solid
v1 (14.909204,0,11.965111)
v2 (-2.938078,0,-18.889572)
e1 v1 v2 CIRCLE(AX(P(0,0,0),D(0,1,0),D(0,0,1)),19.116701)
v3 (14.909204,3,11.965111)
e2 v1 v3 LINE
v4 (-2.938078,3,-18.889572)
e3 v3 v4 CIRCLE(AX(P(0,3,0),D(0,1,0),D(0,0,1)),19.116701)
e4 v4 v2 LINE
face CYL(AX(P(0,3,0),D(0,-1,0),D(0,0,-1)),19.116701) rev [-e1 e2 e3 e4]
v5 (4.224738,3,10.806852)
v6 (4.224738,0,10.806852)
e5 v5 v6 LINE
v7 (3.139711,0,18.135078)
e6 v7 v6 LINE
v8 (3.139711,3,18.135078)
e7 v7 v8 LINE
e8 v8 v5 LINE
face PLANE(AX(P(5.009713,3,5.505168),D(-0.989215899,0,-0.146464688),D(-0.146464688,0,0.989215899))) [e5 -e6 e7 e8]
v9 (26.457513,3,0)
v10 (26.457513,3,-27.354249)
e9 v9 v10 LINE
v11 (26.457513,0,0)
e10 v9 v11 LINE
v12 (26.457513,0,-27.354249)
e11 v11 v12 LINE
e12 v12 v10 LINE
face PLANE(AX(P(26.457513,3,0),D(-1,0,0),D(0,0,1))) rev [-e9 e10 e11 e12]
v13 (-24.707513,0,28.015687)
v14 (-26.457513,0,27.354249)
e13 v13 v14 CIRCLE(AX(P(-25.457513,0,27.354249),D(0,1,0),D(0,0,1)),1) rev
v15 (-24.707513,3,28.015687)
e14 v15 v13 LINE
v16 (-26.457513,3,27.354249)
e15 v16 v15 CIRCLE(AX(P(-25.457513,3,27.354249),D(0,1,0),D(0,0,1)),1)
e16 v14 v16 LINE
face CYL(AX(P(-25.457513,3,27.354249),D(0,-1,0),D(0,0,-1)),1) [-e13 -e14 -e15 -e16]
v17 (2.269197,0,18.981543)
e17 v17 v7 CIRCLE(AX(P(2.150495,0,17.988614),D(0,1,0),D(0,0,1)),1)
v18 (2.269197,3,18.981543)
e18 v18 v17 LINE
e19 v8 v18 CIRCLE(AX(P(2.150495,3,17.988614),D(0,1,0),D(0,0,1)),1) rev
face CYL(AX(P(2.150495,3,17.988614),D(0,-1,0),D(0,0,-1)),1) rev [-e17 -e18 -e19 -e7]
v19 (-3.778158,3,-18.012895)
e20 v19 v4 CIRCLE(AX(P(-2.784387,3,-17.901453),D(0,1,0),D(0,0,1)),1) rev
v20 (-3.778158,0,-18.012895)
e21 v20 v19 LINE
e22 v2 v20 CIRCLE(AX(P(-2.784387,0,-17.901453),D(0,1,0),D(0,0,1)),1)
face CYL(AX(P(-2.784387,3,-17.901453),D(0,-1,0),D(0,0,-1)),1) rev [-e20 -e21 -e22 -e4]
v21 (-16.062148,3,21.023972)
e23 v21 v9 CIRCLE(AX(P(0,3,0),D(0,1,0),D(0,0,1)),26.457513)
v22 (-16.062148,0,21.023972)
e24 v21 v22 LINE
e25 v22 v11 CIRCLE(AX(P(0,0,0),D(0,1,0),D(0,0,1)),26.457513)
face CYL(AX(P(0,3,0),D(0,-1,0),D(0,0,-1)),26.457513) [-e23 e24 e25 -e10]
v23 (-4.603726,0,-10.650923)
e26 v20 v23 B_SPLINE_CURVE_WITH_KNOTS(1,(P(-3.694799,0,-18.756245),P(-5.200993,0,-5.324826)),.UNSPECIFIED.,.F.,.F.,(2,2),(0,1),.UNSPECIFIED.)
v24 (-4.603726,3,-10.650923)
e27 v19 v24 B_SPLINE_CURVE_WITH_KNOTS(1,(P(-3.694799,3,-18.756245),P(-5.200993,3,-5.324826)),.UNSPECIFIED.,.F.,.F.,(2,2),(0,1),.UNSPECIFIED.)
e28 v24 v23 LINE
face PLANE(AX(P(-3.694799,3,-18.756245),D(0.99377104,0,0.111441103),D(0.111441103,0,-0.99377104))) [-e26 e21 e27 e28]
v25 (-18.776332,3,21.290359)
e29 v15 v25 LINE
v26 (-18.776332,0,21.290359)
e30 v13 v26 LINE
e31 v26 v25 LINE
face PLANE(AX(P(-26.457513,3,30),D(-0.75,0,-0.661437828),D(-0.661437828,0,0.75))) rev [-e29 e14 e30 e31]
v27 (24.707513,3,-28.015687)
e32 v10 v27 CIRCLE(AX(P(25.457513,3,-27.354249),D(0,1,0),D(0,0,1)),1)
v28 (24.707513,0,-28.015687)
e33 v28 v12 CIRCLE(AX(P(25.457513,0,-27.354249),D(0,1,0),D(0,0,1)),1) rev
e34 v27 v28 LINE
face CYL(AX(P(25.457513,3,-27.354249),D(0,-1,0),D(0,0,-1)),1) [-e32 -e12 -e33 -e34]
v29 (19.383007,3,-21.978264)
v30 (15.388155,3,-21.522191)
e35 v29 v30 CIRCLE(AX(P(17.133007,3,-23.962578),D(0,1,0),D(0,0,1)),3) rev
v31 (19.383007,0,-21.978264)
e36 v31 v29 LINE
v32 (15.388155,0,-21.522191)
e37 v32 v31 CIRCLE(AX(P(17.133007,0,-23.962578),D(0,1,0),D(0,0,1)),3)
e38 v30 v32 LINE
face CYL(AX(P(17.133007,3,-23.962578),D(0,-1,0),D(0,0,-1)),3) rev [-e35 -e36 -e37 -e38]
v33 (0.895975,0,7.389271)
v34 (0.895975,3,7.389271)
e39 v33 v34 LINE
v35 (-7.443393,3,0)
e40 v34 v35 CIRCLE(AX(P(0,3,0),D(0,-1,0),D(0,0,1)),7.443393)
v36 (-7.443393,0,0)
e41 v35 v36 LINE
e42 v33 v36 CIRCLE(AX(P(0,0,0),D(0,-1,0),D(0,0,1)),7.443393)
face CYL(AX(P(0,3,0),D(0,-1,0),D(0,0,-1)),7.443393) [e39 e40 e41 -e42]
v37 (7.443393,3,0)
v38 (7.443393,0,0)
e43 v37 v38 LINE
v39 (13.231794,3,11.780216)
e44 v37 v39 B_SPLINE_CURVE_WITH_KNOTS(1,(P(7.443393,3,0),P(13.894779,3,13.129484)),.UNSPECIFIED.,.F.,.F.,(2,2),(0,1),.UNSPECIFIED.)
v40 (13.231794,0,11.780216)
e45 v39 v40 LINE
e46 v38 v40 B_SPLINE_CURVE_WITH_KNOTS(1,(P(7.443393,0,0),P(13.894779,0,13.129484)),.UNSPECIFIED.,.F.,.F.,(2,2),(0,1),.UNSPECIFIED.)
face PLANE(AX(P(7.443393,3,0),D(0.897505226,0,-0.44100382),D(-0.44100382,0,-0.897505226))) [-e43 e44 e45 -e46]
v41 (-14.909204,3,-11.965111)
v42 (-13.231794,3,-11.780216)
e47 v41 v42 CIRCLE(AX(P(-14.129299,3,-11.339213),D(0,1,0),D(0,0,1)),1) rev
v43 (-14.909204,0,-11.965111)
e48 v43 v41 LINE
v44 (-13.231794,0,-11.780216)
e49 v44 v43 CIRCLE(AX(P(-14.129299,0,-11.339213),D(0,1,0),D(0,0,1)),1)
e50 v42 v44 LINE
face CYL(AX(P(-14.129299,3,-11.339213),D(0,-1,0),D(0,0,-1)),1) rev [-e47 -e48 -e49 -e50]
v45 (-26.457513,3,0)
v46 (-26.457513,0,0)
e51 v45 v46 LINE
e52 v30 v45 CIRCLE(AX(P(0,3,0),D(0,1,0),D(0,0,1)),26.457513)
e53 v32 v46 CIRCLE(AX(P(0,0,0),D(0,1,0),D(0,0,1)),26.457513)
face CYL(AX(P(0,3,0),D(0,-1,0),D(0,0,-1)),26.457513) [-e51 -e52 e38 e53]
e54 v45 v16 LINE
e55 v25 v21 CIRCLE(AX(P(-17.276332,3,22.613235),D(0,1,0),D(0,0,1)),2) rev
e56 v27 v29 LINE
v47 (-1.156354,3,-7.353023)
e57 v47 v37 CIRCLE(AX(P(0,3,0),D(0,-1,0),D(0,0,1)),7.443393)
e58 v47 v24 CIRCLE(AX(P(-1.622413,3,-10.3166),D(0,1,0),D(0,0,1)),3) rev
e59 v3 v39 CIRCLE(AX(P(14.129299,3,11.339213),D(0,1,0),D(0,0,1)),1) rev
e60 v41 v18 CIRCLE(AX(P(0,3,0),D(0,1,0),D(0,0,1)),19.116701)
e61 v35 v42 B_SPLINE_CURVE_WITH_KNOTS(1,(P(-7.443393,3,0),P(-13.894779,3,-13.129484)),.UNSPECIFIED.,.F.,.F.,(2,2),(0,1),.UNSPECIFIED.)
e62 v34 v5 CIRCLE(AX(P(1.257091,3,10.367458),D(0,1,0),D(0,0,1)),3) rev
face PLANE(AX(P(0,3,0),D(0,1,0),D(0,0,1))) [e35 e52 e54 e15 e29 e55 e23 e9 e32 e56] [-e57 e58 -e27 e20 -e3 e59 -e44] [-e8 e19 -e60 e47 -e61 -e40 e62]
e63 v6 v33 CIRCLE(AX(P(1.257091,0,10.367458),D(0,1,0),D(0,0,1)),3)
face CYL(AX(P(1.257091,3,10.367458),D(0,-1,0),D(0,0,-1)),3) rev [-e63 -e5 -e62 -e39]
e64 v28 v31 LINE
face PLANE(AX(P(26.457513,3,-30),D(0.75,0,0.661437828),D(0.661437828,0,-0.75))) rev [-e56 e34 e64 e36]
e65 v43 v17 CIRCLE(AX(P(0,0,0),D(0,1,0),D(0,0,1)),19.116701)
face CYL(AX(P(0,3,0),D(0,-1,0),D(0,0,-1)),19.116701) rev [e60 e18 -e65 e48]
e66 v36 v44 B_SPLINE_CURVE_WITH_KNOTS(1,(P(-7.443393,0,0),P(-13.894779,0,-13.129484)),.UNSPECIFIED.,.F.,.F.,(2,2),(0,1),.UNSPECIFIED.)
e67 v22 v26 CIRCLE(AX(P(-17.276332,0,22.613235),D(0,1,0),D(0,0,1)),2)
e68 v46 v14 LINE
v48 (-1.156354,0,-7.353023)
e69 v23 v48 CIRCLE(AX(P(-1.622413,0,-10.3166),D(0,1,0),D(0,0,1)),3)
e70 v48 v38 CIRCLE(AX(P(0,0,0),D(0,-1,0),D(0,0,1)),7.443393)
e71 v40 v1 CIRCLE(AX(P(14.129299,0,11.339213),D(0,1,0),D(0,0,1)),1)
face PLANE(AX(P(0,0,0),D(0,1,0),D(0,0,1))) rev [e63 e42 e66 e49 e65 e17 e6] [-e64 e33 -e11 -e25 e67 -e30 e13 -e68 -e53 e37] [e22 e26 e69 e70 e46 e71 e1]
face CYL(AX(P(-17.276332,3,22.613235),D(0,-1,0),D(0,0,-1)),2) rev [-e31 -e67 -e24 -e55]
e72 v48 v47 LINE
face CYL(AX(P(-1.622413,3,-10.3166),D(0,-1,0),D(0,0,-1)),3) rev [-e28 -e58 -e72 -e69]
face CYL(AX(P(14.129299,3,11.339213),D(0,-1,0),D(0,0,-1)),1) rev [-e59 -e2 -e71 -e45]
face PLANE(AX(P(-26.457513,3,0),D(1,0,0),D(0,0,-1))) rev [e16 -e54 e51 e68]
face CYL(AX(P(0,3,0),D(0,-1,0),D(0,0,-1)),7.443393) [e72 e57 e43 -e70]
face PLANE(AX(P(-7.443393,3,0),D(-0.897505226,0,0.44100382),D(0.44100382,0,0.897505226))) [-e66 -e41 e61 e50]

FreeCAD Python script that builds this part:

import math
import FreeCAD as App
import Part
import Sketcher

V = App.Vector
Q = App.Units.Quantity


def edges_at(feature, points):
    """Names of the edges that pass closest to the given points."""
    edges = feature.Shape.Edges
    near = lambda p: min(range(len(edges)), key=lambda i: edges[i].distToShape(Part.Vertex(*p))[0])
    return sorted({f"Edge{near(p) + 1}" for p in points})

doc = App.newDocument("Part")
body = doc.addObject("PartDesign::Body", "Body")

sketch1 = doc.addObject("Sketcher::SketchObject", "Sketch")
body.addObject(sketch1)
sketch1.AttachmentSupport = (doc.XZ_Plane, [""])
sketch1.MapMode = "FlatFace"
sketch1.addGeometry([
    Part.LineSegment(V(-26, 0, 0), V(-26, 30, 0)),
    Part.LineSegment(V(-26, 30, 0), V(-18, 20, 0)),
    Part.ArcOfCircle(Part.Circle(V(0, 0, 0), V(0, 0, 1), 26), math.radians(0), math.radians(131)),
    Part.LineSegment(V(26, 0, 0), V(26, -30, 0)),
    Part.LineSegment(V(26, -30, 0), V(18, -20, 0)),
    Part.ArcOfCircle(Part.Circle(V(0, 0, 0), V(0, 0, 1), 26), math.radians(180), math.radians(311)),
    Part.ArcOfCircle(Part.Circle(V(0, 0, 0), V(0, 0, 1), 7), math.radians(48), math.radians(180)),
    Part.LineSegment(V(5, 6, 0), V(3, 19, 0)),
    Part.ArcOfCircle(Part.Circle(V(0, 0, 0), V(0, 0, 1), 19), math.radians(81), math.radians(223)),
    Part.LineSegment(V(-14, -13, 0), V(-7, 0, 0)),
    Part.ArcOfCircle(Part.Circle(V(0, 0, 0), V(0, 0, 1), 19), math.radians(-101), math.radians(43)),
    Part.LineSegment(V(14, 13, 0), V(7, 0, 0)),
    Part.ArcOfCircle(Part.Circle(V(0, 0, 0), V(0, 0, 1), 7), math.radians(-134), math.radians(0)),
    Part.LineSegment(V(-5, -5, 0), V(-4, -19, 0)),
], False)
sketch1.addConstraint([
    Sketcher.Constraint("Coincident", 0, 2, 1, 1),
    Sketcher.Constraint("Coincident", 1, 2, 2, 2),
    Sketcher.Constraint("Tangent", 2, 1, 3, 1),
    Sketcher.Constraint("Coincident", 3, 2, 4, 1),
    Sketcher.Constraint("Coincident", 4, 2, 5, 2),
    Sketcher.Constraint("Tangent", 5, 1, 0, 1),
    Sketcher.Constraint("Coincident", 6, 1, 7, 1),
    Sketcher.Constraint("Coincident", 7, 2, 8, 1),
    Sketcher.Constraint("Coincident", 8, 2, 9, 1),
    Sketcher.Constraint("Coincident", 9, 2, 6, 2),
    Sketcher.Constraint("Coincident", 10, 2, 11, 1),
    Sketcher.Constraint("Coincident", 11, 2, 12, 2),
    Sketcher.Constraint("Coincident", 12, 1, 13, 1),
    Sketcher.Constraint("Coincident", 13, 2, 10, 1),
    Sketcher.Constraint("Vertical", 0),
    Sketcher.Constraint("Vertical", 3),
    Sketcher.Constraint("Coincident", 2, 3, -1, 1),
    Sketcher.Constraint("Coincident", 5, 3, -1, 1),
    Sketcher.Constraint("Coincident", 6, 3, -1, 1),
    Sketcher.Constraint("Coincident", 8, 3, -1, 1),
    Sketcher.Constraint("Coincident", 10, 3, -1, 1),
    Sketcher.Constraint("Coincident", 12, 3, -1, 1),
    Sketcher.Constraint("Equal", 2, 5),
    Sketcher.Constraint("Equal", 8, 10),
    Sketcher.Constraint("Equal", 6, 12),
    Sketcher.Constraint("PointOnObject", 9, 2, -1),
    Sketcher.Constraint("PointOnObject", 11, 2, -1),
    Sketcher.Constraint("Parallel", 1, 4),
    Sketcher.Constraint("Parallel", 9, 11),
    Sketcher.Constraint("Equal", 0, 3),
    Sketcher.Constraint("Equal", 7, 13),
    Sketcher.Constraint("DistanceY", 0, 1, 0, 2, Q("30 mm")),
    Sketcher.Constraint("DistanceX", 1, 2, -1, 1, Q("17.5 mm")),
    Sketcher.Constraint("Radius", 8, Q("19.116701 mm")),
    Sketcher.Constraint("Radius", 2, Q("26.457513 mm")),
    Sketcher.Constraint("Radius", 6, Q("7.443393 mm")),
    Sketcher.Constraint("DistanceX", 13, 2, -1, 1, Q("3.694799 mm")),
    Sketcher.Constraint("DistanceX", 9, 2, 12, 1, Q("2.2424 mm")),
    Sketcher.Constraint("DistanceY", -1, 1, 7, 2, Q("18.875021 mm")),
    Sketcher.Constraint("DistanceX", 8, 2, -1, 1, Q("13.894779 mm")),
])
pad1 = doc.addObject("PartDesign::Pad", "Pad")
body.addObject(pad1)
pad1.Profile = sketch1
pad1.Length = 3
pad1.Reversed = True
doc.recompute()

fillet = doc.addObject("PartDesign::Fillet", "Fillet")
body.addObject(fillet)
fillet.Base = (pad1, edges_at(pad1, [(26.458, 1.5, -30)]))
fillet.Radius = 1
doc.recompute()

fillet2 = doc.addObject("PartDesign::Fillet", "Fillet001")
body.addObject(fillet2)
fillet2.Base = (fillet, edges_at(fillet, [(-26.458, 1.5, 30)]))
fillet2.Radius = 1
doc.recompute()

fillet3 = doc.addObject("PartDesign::Fillet", "Fillet002")
body.addObject(fillet3)
fillet3.Base = (fillet2, edges_at(fillet2, [(-5.201, 1.5, -5.325)]))
fillet3.Radius = 3
doc.recompute()

fillet4 = doc.addObject("PartDesign::Fillet", "Fillet003")
body.addObject(fillet4)
fillet4.Base = (fillet3, edges_at(fillet3, [(-3.695, 1.5, -18.756)]))
fillet4.Radius = 1
doc.recompute()

fillet5 = doc.addObject("PartDesign::Fillet", "Fillet004")
body.addObject(fillet5)
fillet5.Base = (fillet4, edges_at(fillet4, [(-17.5, 1.5, 19.843)]))
fillet5.Radius = 2
doc.recompute()

fillet6 = doc.addObject("PartDesign::Fillet", "Fillet005")
body.addObject(fillet6)
fillet6.Base = (fillet5, edges_at(fillet5, [(5.01, 1.5, 5.505)]))
fillet6.Radius = 3
doc.recompute()

fillet7 = doc.addObject("PartDesign::Fillet", "Fillet006")
body.addObject(fillet7)
fillet7.Base = (fillet6, edges_at(fillet6, [(3.03, 1.5, 18.875)]))
fillet7.Radius = 1
doc.recompute()

fillet8 = doc.addObject("PartDesign::Fillet", "Fillet007")
body.addObject(fillet8)
fillet8.Base = (fillet7, edges_at(fillet7, [(13.895, 1.5, 13.129)]))
fillet8.Radius = 1
doc.recompute()

fillet9 = doc.addObject("PartDesign::Fillet", "Fillet008")
body.addObject(fillet9)
fillet9.Base = (fillet8, edges_at(fillet8, [(-13.895, 1.5, -13.129)]))
fillet9.Radius = 1
doc.recompute()

fillet10 = doc.addObject("PartDesign::Fillet", "Fillet009")
body.addObject(fillet10)
fillet10.Base = (fillet9, edges_at(fillet9, [(17.5, 1.5, -19.843)]))
fillet10.Radius = 3

doc.recompute()
